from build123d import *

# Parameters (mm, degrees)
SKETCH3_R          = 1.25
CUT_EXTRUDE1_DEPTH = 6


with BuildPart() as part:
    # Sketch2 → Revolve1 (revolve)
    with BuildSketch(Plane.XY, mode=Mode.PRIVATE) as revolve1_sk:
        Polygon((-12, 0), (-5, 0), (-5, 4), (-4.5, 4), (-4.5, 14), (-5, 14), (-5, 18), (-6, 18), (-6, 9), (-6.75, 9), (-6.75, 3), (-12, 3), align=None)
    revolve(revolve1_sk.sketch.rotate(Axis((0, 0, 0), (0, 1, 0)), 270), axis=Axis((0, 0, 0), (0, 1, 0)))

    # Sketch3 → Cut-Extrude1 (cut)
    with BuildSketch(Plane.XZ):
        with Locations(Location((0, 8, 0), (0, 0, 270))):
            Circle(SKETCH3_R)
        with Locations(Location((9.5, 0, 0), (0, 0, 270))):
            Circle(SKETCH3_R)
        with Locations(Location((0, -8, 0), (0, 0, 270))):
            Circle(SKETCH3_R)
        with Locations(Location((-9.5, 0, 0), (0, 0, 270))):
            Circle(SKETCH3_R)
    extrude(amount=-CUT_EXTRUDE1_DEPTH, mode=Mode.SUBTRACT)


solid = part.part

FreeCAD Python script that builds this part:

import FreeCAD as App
import Part
import Sketcher

doc = App.newDocument("Part")
body = doc.addObject("PartDesign::Body", "Body")

# Sketch on XY plane
sketch1 = doc.addObject("Sketcher::SketchObject", "Sketch")
body.addObject(sketch1)
sketch1.AttachmentSupport = (doc.XY_Plane, [""])
sketch1.MapMode = "FlatFace"
sketch1.addGeometry([
    Part.LineSegment(App.Vector(-12, 0, 0), App.Vector(-5, 0, 0)),  # 0
    Part.LineSegment(App.Vector(-5, 0, 0), App.Vector(-5, 4, 0)),  # 1
    Part.LineSegment(App.Vector(-5, 4, 0), App.Vector(-4.5, 4, 0)),  # 2
    Part.LineSegment(App.Vector(-4.5, 4, 0), App.Vector(-4.5, 14, 0)),  # 3
    Part.LineSegment(App.Vector(-4.5, 14, 0), App.Vector(-5, 14, 0)),  # 4
    Part.LineSegment(App.Vector(-5, 14, 0), App.Vector(-5, 18, 0)),  # 5
    Part.LineSegment(App.Vector(-5, 18, 0), App.Vector(-6, 18, 0)),  # 6
    Part.LineSegment(App.Vector(-6, 18, 0), App.Vector(-6, 9, 0)),  # 7
    Part.LineSegment(App.Vector(-6, 9, 0), App.Vector(-6.75, 9, 0)),  # 8
    Part.LineSegment(App.Vector(-6.75, 9, 0), App.Vector(-6.75, 3, 0)),  # 9
    Part.LineSegment(App.Vector(-6.75, 3, 0), App.Vector(-12, 3, 0)),  # 10
    Part.LineSegment(App.Vector(-12, 3, 0), App.Vector(-12, 0, 0)),  # 11
], False)
sketch1.addConstraint([
    Sketcher.Constraint("Coincident", 0, 2, 1, 1),
    Sketcher.Constraint("Coincident", 1, 2, 2, 1),
    Sketcher.Constraint("Coincident", 2, 2, 3, 1),
    Sketcher.Constraint("Coincident", 3, 2, 4, 1),
    Sketcher.Constraint("Coincident", 4, 2, 5, 1),
    Sketcher.Constraint("Coincident", 5, 2, 6, 1),
    Sketcher.Constraint("Coincident", 6, 2, 7, 1),
    Sketcher.Constraint("Coincident", 7, 2, 8, 1),
    Sketcher.Constraint("Coincident", 8, 2, 9, 1),
    Sketcher.Constraint("Coincident", 9, 2, 10, 1),
    Sketcher.Constraint("Coincident", 10, 2, 11, 1),
    Sketcher.Constraint("Coincident", 11, 2, 0, 1),
    Sketcher.Constraint("Horizontal", 0),
    Sketcher.Constraint("Vertical", 1),
    Sketcher.Constraint("Horizontal", 2),
    Sketcher.Constraint("Vertical", 3),
    Sketcher.Constraint("Horizontal", 4),
    Sketcher.Constraint("Vertical", 5),
    Sketcher.Constraint("Horizontal", 6),
    Sketcher.Constraint("Vertical", 7),
    Sketcher.Constraint("Horizontal", 8),
    Sketcher.Constraint("Vertical", 9),
    Sketcher.Constraint("Horizontal", 10),
    Sketcher.Constraint("Vertical", 11),
    Sketcher.Constraint("PointOnObject", 0, 2, -1),
    Sketcher.Constraint("Vertical", 1, 2, 4, 2),
    Sketcher.Constraint("Equal", 1, 5),
    Sketcher.Constraint("DistanceX", 0, 1, 0, 2, 7.0),
    Sketcher.Constraint("DistanceX", 6, 2, 6, 1, 1.0),
    Sketcher.Constraint("DistanceY", 1, 1, 1, 2, 4.0),
    Sketcher.Constraint("DistanceY", 3, 1, 3, 2, 10.0),
    Sketcher.Constraint("DistanceY", 7, 2, 7, 1, 9.0),
    Sketcher.Constraint("DistanceY", 9, 2, 9, 1, 6.0),
    Sketcher.Constraint("DistanceX", 2, 1, 2, 2, 0.5),
    Sketcher.Constraint("DistanceX", 0, 2, -1, 1, 5.0),
    Sketcher.Constraint("DistanceX", 8, 2, 8, 1, 0.75),
])
revolution = doc.addObject("PartDesign::Revolution", "Revolution")
body.addObject(revolution)
revolution.Profile = sketch1
revolution.ReferenceAxis = (sketch1, ["V_Axis"])
revolution.Angle = 360

# Sketch on XZ plane
sketch2 = doc.addObject("Sketcher::SketchObject", "Sketch001")
body.addObject(sketch2)
sketch2.AttachmentSupport = (doc.XZ_Plane, [""])
sketch2.MapMode = "FlatFace"
sketch2.addGeometry([
    Part.Circle(App.Vector(0, 8, 0), App.Vector(0, 0, 1), 1.25),
    Part.Circle(App.Vector(9.5, 0, 0), App.Vector(0, 0, 1), 1.25),
    Part.Circle(App.Vector(0, -8, 0), App.Vector(0, 0, 1), 1.25),
    Part.Circle(App.Vector(-9.5, 0, 0), App.Vector(0, 0, 1), 1.25),
], False)
sketch2.addConstraint([
    Sketcher.Constraint("Equal", 0, 1),
    Sketcher.Constraint("Equal", 1, 2),
    Sketcher.Constraint("Equal", 2, 3),
    Sketcher.Constraint("Symmetric", 0, 3, 2, 3, -1, 1),
    Sketcher.Constraint("Symmetric", 1, 3, 3, 3, -1, 1),
    Sketcher.Constraint("PointOnObject", 0, 3, -2),
    Sketcher.Constraint("PointOnObject", 1, 3, -1),
    Sketcher.Constraint("Diameter", 0, 2.5),
    Sketcher.Constraint("DistanceY", -1, 1, 0, 3, 8.0),
    Sketcher.Constraint("DistanceX", 3, 3, 1, 3, 19.0),
])
pocket1 = doc.addObject("PartDesign::Pocket", "Pocket")
body.addObject(pocket1)
pocket1.Profile = sketch2
pocket1.Length = 6

doc.recompute()
